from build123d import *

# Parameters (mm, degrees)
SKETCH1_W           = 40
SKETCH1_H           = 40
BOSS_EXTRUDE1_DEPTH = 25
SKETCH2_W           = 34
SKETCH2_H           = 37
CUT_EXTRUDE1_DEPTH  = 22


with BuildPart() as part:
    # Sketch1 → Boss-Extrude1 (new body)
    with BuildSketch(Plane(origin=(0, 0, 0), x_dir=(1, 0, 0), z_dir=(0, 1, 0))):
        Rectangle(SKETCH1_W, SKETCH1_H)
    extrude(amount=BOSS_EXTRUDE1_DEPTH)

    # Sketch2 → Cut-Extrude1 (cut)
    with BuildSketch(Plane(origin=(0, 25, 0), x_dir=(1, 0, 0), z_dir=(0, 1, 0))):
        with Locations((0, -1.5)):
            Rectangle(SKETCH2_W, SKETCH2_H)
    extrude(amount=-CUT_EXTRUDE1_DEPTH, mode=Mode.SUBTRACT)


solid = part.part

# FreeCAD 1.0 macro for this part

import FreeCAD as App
import Part
import Sketcher
from FreeCAD import Vector
Q = App.Units.Quantity


def add_polygon(sketch, points):
    """Adds a closed chain of lines whose ends are joined by coincident constraints."""
    first, n = sketch.GeometryCount, len(points)
    for a, b in zip(points, points[1:] + points[:1]):
        sketch.addGeometry(Part.LineSegment(App.Vector(*a, 0), App.Vector(*b, 0)), False)
    for i in range(n):
        sketch.addConstraint(Sketcher.Constraint("Coincident", first + i, 2, first + (i + 1) % n, 1))

doc = App.newDocument("Part")
body = doc.addObject("PartDesign::Body", "Body")

sketch1 = body.newObject("Sketcher::SketchObject", "Sketch")
sketch1.AttachmentSupport = (doc.getObject("XZ_Plane"), [""])
sketch1.MapMode = "FlatFace"
add_polygon(sketch1, [(-20, -20), (-20, 20), (20, 20), (20, -20)])
sketch1.addConstraint(Sketcher.Constraint("Vertical", 0))
sketch1.addConstraint(Sketcher.Constraint("Horizontal", 1))
sketch1.addConstraint(Sketcher.Constraint("Vertical", 2))
sketch1.addConstraint(Sketcher.Constraint("Horizontal", 3))
sketch1.addConstraint(Sketcher.Constraint("Symmetric", 0, 2, 2, 2, -1, 1))
sketch1.addConstraint(Sketcher.Constraint("Equal", 3, 0))
sketch1.addConstraint(Sketcher.Constraint("DistanceX", 1, 1, 1, 2, Q("40 mm")))
pad1 = body.newObject("PartDesign::Pad", "Pad")
pad1.Profile = sketch1
pad1.Length = 25
pad1.Reversed = True

sketch2 = body.newObject("Sketcher::SketchObject", "Sketch001")
sketch2.AttachmentSupport = (doc.getObject("XZ_Plane"), [""])
sketch2.MapMode = "FlatFace"
sketch2.AttachmentOffset = App.Placement(Vector(0, 0, -25), App.Rotation())
add_polygon(sketch2, [(-17, -17), (-17, 20), (17, 20), (17, -17)])
sketch2.addConstraint(Sketcher.Constraint("Vertical", 0))
sketch2.addConstraint(Sketcher.Constraint("Horizontal", 1))
sketch2.addConstraint(Sketcher.Constraint("Vertical", 2))
sketch2.addConstraint(Sketcher.Constraint("Horizontal", 3))
sketch2.addConstraint(Sketcher.Constraint("DistanceX", 1, 1, 1, 2, Q("34 mm")))
sketch2.addConstraint(Sketcher.Constraint("DistanceY", 0, 1, 0, 2, Q("37 mm")))
sketch2.addConstraint(Sketcher.Constraint("DistanceX", 0, 2, -1, 1, Q("17 mm")))
sketch2.addConstraint(Sketcher.Constraint("DistanceY", -1, 1, 0, 2, Q("20 mm")))
pocket1 = body.newObject("PartDesign::Pocket", "Pocket")
pocket1.Profile = sketch2
pocket1.Length = 22
pocket1.Reversed = True

doc.recompute()
